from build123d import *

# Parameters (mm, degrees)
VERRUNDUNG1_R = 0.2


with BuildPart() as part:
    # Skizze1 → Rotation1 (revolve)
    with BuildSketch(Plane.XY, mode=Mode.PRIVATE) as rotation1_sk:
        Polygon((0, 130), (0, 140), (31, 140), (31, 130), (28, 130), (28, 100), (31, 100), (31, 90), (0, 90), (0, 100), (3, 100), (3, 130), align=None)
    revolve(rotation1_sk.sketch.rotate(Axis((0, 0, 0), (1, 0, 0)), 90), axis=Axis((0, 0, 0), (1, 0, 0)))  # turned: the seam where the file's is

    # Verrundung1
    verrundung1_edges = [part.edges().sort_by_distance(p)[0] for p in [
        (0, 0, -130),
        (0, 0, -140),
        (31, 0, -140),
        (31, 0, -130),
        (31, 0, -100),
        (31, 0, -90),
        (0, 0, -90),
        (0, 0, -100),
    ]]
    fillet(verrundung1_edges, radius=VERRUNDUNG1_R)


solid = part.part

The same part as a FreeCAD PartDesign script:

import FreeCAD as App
import Part
import Sketcher
Q = App.Units.Quantity


def edges_at(feature, points):
    """Names of the edges that pass closest to the given points."""
    edges = feature.Shape.Edges
    near = lambda p: min(range(len(edges)), key=lambda i: edges[i].distToShape(Part.Vertex(*p))[0])
    return sorted({f"Edge{near(p) + 1}" for p in points})


def add_polygon(sketch, points):
    """Adds a closed chain of lines whose ends are joined by coincident constraints."""
    first, n = sketch.GeometryCount, len(points)
    for a, b in zip(points, points[1:] + points[:1]):
        sketch.addGeometry(Part.LineSegment(App.Vector(*a, 0), App.Vector(*b, 0)), False)
    for i in range(n):
        sketch.addConstraint(Sketcher.Constraint("Coincident", first + i, 2, first + (i + 1) % n, 1))

doc = App.newDocument("Part")
body = doc.addObject("PartDesign::Body", "Body")

sketch1 = body.newObject("Sketcher::SketchObject", "Sketch")
sketch1.AttachmentSupport = (doc.getObject("XY_Plane"), [""])
sketch1.MapMode = "FlatFace"
add_polygon(sketch1, [(0, 140), (0, 130), (3, 130), (3, 100), (0, 100), (0, 90), (31, 90), (31, 100), (28, 100), (28, 130), (31, 130), (31, 140)])
sketch1.addConstraint([
    Sketcher.Constraint("Vertical", 0),
    Sketcher.Constraint("Horizontal", 1),
    Sketcher.Constraint("Vertical", 2),
    Sketcher.Constraint("Horizontal", 3),
    Sketcher.Constraint("Vertical", 4),
    Sketcher.Constraint("Horizontal", 5),
    Sketcher.Constraint("Vertical", 6),
    Sketcher.Constraint("Horizontal", 7),
    Sketcher.Constraint("Vertical", 8),
    Sketcher.Constraint("Horizontal", 9),
    Sketcher.Constraint("Vertical", 10),
    Sketcher.Constraint("Horizontal", 11),
    Sketcher.Constraint("PointOnObject", 0, 2, -2),
    Sketcher.Constraint("PointOnObject", 3, 2, -2),
    Sketcher.Constraint("Horizontal", 3, 2, 6, 2),
    Sketcher.Constraint("Horizontal", 1, 2, 8, 2),
    Sketcher.Constraint("Vertical", 6, 2, 9, 2),
    Sketcher.Constraint("Equal", 3, 7),
    Sketcher.Constraint("Equal", 0, 4),
    Sketcher.Constraint("DistanceX", 1, 1, 1, 2, Q("3 mm")),
    Sketcher.Constraint("DistanceX", 5, 1, 5, 2, Q("31 mm")),
    Sketcher.Constraint("DistanceY", 0, 2, 0, 1, Q("10 mm")),
    Sketcher.Constraint("DistanceY", 2, 2, 2, 1, Q("30 mm")),
    Sketcher.Constraint("DistanceY", -1, 1, 0, 2, Q("130 mm")),
])
revolution = body.newObject("PartDesign::Revolution", "Revolution")
revolution.Profile = sketch1
revolution.ReferenceAxis = (sketch1, ["H_Axis"])
revolution.Angle = 360
doc.recompute()

fillet = body.newObject("PartDesign::Fillet", "Fillet")
fillet.Base = (revolution, edges_at(revolution, [
    (0, 0, -130),
    (0, 0, -140),
    (31, 0, -140),
    (31, 0, -130),
    (31, 0, -100),
    (31, 0, -90),
    (0, 0, -90),
    (0, 0, -100),
]))
fillet.Radius = 0.2

doc.recompute()
